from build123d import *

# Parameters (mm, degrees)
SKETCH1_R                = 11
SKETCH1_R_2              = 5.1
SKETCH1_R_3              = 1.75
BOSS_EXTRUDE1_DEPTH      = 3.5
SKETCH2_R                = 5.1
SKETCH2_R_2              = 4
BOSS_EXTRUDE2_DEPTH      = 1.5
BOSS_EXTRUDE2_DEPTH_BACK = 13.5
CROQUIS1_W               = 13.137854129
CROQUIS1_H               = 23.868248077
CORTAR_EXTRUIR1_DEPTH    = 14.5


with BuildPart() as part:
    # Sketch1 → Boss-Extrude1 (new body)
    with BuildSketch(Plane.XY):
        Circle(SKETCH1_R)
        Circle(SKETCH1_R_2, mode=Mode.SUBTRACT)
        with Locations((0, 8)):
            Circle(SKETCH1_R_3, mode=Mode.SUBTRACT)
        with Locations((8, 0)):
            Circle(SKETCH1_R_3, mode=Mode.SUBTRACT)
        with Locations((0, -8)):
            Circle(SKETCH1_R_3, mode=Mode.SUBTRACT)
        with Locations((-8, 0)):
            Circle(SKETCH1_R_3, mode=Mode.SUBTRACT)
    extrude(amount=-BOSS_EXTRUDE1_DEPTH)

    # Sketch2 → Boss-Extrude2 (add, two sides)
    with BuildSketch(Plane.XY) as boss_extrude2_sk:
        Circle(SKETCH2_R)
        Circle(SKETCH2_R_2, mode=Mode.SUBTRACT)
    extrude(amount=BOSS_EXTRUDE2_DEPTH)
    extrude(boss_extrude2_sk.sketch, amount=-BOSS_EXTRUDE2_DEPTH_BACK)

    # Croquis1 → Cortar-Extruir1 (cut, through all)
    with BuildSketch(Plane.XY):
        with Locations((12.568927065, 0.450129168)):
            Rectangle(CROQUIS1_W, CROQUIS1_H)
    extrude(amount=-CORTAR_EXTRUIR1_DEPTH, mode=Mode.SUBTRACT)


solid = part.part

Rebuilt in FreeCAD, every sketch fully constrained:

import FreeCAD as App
import Part
import Sketcher
from FreeCAD import Vector
Q = App.Units.Quantity


def add_polygon(sketch, points):
    """Adds a closed chain of lines whose ends are joined by coincident constraints."""
    first, n = sketch.GeometryCount, len(points)
    for a, b in zip(points, points[1:] + points[:1]):
        sketch.addGeometry(Part.LineSegment(App.Vector(*a, 0), App.Vector(*b, 0)), False)
    for i in range(n):
        sketch.addConstraint(Sketcher.Constraint("Coincident", first + i, 2, first + (i + 1) % n, 1))

doc = App.newDocument("Part")
body = doc.addObject("PartDesign::Body", "Body")

# Sketch on XY plane
sketch1 = body.newObject("Sketcher::SketchObject", "Sketch")
sketch1.AttachmentSupport = (doc.getObject("XY_Plane"), [""])
sketch1.MapMode = "FlatFace"
sketch1.addGeometry(Part.Circle(Vector(0, 0, 0), Vector(0, 0, 1), 11), False)
sketch1.addGeometry(Part.Circle(Vector(0, -8, 0), Vector(0, 0, 1), 1.8), False)
sketch1.addGeometry(Part.Circle(Vector(-8, 0, 0), Vector(0, 0, 1), 1.8), False)
sketch1.addGeometry(Part.Circle(Vector(0, 0, 0), Vector(0, 0, 1), 5.1), False)
sketch1.addGeometry(Part.Circle(Vector(8, 0, 0), Vector(0, 0, 1), 1.8), False)
sketch1.addGeometry(Part.Circle(Vector(0, 8, 0), Vector(0, 0, 1), 1.8), False)
sketch1.addConstraint(Sketcher.Constraint("Coincident", 0, 3, -1, 1))
sketch1.addConstraint(Sketcher.Constraint("Coincident", 3, 3, -1, 1))
sketch1.addConstraint(Sketcher.Constraint("Equal", 1, 2))
sketch1.addConstraint(Sketcher.Constraint("Equal", 2, 4))
sketch1.addConstraint(Sketcher.Constraint("Equal", 4, 5))
sketch1.addConstraint(Sketcher.Constraint("Symmetric", 2, 3, 4, 3, -1, 1))
sketch1.addConstraint(Sketcher.Constraint("Symmetric", 1, 3, 5, 3, -1, 1))
sketch1.addConstraint(Sketcher.Constraint("PointOnObject", 1, 3, -2))
sketch1.addConstraint(Sketcher.Constraint("PointOnObject", 2, 3, -1))
sketch1.addConstraint(Sketcher.Constraint("Diameter", 0, Q("22 mm")))
sketch1.addConstraint(Sketcher.Constraint("Diameter", 1, Q("3.5 mm")))
sketch1.addConstraint(Sketcher.Constraint("Diameter", 3, Q("10.2 mm")))
sketch1.addConstraint(Sketcher.Constraint("DistanceY", 1, 3, -1, 1, Q("8 mm")))
sketch1.addConstraint(Sketcher.Constraint("DistanceX", 2, 3, -1, 1, Q("8 mm")))
pad1 = body.newObject("PartDesign::Pad", "Pad")
pad1.Profile = sketch1
pad1.Length = 3.5
pad1.Reversed = True

# Sketch on XY plane
sketch2 = body.newObject("Sketcher::SketchObject", "Sketch001")
sketch2.AttachmentSupport = (doc.getObject("XY_Plane"), [""])
sketch2.MapMode = "FlatFace"
sketch2.addGeometry(Part.Circle(Vector(0, 0, 0), Vector(0, 0, 1), 5.1), False)
sketch2.addGeometry(Part.Circle(Vector(0, 0, 0), Vector(0, 0, 1), 4), False)
sketch2.addConstraint(Sketcher.Constraint("Coincident", 0, 3, -1, 1))
sketch2.addConstraint(Sketcher.Constraint("Coincident", 1, 3, -1, 1))
sketch2.addConstraint(Sketcher.Constraint("Diameter", 1, Q("8 mm")))
sketch2.addConstraint(Sketcher.Constraint("Diameter", 0, Q("10.2 mm")))
pad2 = body.newObject("PartDesign::Pad", "Pad001")
pad2.Profile = sketch2
pad2.Type = "TwoLengths"
pad2.Length = 1.5
pad2.Length2 = 13.5

# Sketch on XY plane
sketch3 = body.newObject("Sketcher::SketchObject", "Sketch002")
sketch3.AttachmentSupport = (doc.getObject("XY_Plane"), [""])
sketch3.MapMode = "FlatFace"
add_polygon(sketch3, [(6, 12), (6, -11), (19, -11), (19, 12)])  # lines 0-3
sketch3.addConstraint(Sketcher.Constraint("Vertical", 0))
sketch3.addConstraint(Sketcher.Constraint("Horizontal", 1))
sketch3.addConstraint(Sketcher.Constraint("Vertical", 2))
sketch3.addConstraint(Sketcher.Constraint("Horizontal", 3))
sketch3.addConstraint(Sketcher.Constraint("DistanceX", -1, 1, 0, 2, Q("6 mm")))
sketch3.addConstraint(Sketcher.Constraint("DistanceY", 0, 2, 0, 1, Q("23.868248 mm")))
sketch3.addConstraint(Sketcher.Constraint("DistanceX", 1, 1, 1, 2, Q("13.137854 mm")))
sketch3.addConstraint(Sketcher.Constraint("DistanceY", 0, 2, -1, 1, Q("11.483995 mm")))
pocket1 = body.newObject("PartDesign::Pocket", "Pocket")
pocket1.Profile = sketch3
pocket1.Type = "ThroughAll"

doc.recompute()
